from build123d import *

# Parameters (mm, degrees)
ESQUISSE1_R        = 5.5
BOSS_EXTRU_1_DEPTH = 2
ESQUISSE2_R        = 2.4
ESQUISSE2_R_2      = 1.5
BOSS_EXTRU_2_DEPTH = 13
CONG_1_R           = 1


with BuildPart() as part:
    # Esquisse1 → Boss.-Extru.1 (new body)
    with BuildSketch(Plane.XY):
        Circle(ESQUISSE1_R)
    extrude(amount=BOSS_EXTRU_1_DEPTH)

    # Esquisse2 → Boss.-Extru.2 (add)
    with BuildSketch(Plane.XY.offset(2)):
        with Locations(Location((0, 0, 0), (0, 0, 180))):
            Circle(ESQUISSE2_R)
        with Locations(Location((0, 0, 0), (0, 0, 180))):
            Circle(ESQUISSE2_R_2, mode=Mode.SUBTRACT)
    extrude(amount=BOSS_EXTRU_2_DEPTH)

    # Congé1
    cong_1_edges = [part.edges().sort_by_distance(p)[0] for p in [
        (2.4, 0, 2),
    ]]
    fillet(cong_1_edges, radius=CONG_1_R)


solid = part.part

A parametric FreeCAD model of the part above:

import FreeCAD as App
import Part
import Sketcher

V = App.Vector
Q = App.Units.Quantity


def edges_at(feature, points):
    """Names of the edges that pass closest to the given points."""
    edges = feature.Shape.Edges
    near = lambda p: min(range(len(edges)), key=lambda i: edges[i].distToShape(Part.Vertex(*p))[0])
    return sorted({f"Edge{near(p) + 1}" for p in points})

doc = App.newDocument("Part")
body = doc.addObject("PartDesign::Body", "Body")

# Sketch on XY plane
sketch1 = body.newObject("Sketcher::SketchObject", "Sketch")
sketch1.AttachmentSupport = (doc.getObject("XY_Plane"), [""])
sketch1.MapMode = "FlatFace"
sketch1.addGeometry(Part.Circle(V(0, 0, 0), V(0, 0, 1), 5.5), False)
sketch1.addConstraint(Sketcher.Constraint("Coincident", 0, 3, -1, 1))
sketch1.addConstraint(Sketcher.Constraint("Diameter", 0, Q("11 mm")))
pad1 = body.newObject("PartDesign::Pad", "Pad")
pad1.Profile = sketch1
pad1.Length = 2

# Sketch on XY plane
sketch2 = body.newObject("Sketcher::SketchObject", "Sketch001")
sketch2.AttachmentSupport = (doc.getObject("XY_Plane"), [""])
sketch2.MapMode = "FlatFace"
sketch2.AttachmentOffset = App.Placement(V(0, 0, 2), App.Rotation())
sketch2.addGeometry(Part.Circle(V(0, 0, 0), V(0, 0, 1), 2.4), False)
sketch2.addGeometry(Part.Circle(V(0, 0, 0), V(0, 0, 1), 1.5), False)
sketch2.addConstraint(Sketcher.Constraint("Coincident", 0, 3, -1, 1))
sketch2.addConstraint(Sketcher.Constraint("Coincident", 1, 3, -1, 1))
sketch2.addConstraint(Sketcher.Constraint("Diameter", 1, Q("3 mm")))
sketch2.addConstraint(Sketcher.Constraint("Diameter", 0, Q("4.8 mm")))
pad2 = body.newObject("PartDesign::Pad", "Pad001")
pad2.Profile = sketch2
pad2.Length = 13
doc.recompute()

fillet = body.newObject("PartDesign::Fillet", "Fillet")
fillet.Base = (pad2, edges_at(pad2, [(2.4, 0, 2)]))
fillet.Radius = 1

doc.recompute()
